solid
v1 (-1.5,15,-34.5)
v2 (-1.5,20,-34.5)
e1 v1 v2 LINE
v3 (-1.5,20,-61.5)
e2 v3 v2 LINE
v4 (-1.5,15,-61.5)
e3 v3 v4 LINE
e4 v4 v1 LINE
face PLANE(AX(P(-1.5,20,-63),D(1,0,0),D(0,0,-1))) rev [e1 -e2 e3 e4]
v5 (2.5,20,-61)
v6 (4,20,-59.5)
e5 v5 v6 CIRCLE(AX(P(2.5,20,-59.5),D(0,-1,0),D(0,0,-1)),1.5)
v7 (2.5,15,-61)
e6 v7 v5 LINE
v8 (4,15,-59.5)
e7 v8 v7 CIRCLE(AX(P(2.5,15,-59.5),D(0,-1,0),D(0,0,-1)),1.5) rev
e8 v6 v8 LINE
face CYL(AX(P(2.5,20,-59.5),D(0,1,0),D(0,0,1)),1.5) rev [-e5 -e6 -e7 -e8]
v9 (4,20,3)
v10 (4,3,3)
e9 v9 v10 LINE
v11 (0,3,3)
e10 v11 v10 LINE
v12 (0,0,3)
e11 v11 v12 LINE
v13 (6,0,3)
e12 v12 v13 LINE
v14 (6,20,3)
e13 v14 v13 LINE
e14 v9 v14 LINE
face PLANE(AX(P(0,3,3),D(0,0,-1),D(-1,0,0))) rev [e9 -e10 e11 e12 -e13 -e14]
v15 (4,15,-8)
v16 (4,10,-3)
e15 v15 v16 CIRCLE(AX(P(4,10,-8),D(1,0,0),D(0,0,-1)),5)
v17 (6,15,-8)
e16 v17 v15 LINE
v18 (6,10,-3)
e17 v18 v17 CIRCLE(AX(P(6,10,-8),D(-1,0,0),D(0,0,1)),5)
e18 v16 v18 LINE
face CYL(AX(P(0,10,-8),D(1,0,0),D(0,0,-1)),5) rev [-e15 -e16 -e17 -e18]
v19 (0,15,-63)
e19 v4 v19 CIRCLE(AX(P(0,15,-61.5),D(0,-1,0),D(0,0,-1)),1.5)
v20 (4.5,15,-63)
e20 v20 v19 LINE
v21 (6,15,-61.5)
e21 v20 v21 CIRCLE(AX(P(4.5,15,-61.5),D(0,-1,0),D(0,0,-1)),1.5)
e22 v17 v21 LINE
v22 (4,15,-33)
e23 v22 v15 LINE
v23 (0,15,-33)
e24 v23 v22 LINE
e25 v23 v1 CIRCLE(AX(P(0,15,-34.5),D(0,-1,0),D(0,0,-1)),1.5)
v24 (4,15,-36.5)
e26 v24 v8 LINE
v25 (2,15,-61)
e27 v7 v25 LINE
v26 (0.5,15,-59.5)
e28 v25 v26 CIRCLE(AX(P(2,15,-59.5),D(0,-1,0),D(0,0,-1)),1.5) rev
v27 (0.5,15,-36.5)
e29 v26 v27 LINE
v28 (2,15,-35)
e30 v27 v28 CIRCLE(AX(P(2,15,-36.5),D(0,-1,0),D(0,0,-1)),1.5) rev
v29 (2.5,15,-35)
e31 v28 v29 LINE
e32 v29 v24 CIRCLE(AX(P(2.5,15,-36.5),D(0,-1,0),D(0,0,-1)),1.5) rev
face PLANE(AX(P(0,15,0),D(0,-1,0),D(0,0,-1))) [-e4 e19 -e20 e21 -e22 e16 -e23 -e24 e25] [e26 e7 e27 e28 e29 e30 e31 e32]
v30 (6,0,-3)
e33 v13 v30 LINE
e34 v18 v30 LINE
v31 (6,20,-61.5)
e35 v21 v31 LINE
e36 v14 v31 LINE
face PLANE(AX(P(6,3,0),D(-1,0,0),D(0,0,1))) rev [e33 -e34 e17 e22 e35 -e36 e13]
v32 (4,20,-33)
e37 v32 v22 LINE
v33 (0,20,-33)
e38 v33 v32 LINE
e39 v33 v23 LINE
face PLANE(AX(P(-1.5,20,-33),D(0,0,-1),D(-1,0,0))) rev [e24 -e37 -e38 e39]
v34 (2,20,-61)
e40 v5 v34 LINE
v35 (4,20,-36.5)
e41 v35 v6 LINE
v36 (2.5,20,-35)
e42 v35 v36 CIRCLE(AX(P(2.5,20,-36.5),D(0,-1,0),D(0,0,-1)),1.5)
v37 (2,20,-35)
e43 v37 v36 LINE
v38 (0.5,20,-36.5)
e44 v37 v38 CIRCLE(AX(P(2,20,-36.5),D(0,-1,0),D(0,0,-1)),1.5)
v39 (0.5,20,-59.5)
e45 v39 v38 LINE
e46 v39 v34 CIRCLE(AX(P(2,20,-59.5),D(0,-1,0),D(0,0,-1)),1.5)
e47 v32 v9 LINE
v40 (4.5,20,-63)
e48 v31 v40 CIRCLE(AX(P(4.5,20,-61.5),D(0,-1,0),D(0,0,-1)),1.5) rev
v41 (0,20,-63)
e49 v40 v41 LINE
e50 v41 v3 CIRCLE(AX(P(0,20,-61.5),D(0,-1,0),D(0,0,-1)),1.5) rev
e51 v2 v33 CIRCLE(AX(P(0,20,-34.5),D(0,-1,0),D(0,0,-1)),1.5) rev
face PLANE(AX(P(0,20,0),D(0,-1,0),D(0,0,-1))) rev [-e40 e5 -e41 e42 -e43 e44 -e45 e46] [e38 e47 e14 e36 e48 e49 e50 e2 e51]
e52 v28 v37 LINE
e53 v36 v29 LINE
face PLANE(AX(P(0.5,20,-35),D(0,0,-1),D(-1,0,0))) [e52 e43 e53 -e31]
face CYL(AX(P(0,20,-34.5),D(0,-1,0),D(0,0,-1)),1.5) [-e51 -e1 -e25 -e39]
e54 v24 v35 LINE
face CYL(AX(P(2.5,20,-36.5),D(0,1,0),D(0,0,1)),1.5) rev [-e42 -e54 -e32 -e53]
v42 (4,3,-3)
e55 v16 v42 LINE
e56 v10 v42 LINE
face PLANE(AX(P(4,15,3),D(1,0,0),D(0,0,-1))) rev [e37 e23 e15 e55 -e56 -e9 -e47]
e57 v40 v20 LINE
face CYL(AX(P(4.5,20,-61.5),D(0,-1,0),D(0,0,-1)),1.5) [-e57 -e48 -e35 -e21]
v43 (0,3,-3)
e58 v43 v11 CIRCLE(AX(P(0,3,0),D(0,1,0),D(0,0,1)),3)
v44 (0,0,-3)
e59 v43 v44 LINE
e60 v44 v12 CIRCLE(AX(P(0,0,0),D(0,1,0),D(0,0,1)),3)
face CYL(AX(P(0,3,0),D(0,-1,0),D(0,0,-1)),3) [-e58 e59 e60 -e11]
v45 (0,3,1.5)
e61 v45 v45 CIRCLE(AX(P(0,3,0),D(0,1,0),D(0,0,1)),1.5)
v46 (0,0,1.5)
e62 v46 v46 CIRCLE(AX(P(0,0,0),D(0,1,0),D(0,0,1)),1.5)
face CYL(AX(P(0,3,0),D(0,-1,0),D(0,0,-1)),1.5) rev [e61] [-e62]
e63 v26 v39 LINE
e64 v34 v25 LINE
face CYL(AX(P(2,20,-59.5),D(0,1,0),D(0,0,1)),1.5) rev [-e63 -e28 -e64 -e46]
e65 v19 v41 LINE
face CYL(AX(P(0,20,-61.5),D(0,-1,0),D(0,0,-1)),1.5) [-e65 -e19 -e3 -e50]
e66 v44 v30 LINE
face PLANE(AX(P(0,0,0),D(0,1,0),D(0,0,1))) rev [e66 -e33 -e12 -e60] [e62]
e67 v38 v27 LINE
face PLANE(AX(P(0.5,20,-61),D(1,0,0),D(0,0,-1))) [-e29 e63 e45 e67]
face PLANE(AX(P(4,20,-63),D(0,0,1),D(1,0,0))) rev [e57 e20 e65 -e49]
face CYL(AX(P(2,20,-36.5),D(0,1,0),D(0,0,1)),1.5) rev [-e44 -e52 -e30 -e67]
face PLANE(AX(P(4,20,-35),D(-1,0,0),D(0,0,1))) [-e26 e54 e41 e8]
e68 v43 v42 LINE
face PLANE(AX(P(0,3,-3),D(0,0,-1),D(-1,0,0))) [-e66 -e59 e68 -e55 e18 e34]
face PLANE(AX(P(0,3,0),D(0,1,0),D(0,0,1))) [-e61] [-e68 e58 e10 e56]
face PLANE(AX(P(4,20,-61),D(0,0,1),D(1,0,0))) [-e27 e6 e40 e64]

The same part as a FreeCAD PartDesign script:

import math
import FreeCAD as App
import Part
import Sketcher


def edges_at(feature, points):
    """Names of the edges that pass closest to the given points."""
    edges = feature.Shape.Edges
    near = lambda p: min(range(len(edges)), key=lambda i: edges[i].distToShape(Part.Vertex(*p))[0])
    return sorted({f"Edge{near(p) + 1}" for p in points})


def add_polygon(sketch, points):
    """Adds a closed chain of lines whose ends are joined by coincident constraints."""
    first, n = sketch.GeometryCount, len(points)
    for a, b in zip(points, points[1:] + points[:1]):
        sketch.addGeometry(Part.LineSegment(App.Vector(*a, 0), App.Vector(*b, 0)), False)
    for i in range(n):
        sketch.addConstraint(Sketcher.Constraint("Coincident", first + i, 2, first + (i + 1) % n, 1))

doc = App.newDocument("Part")
body = doc.addObject("PartDesign::Body", "Body")

# Sketch on XZ plane
sketch1 = body.newObject("Sketcher::SketchObject", "Sketch")
sketch1.AttachmentSupport = (doc.getObject("XZ_Plane"), [""])
sketch1.MapMode = "FlatFace"
sketch1.addGeometry([
    Part.ArcOfCircle(Part.Circle(App.Vector(0, 0, 0), App.Vector(0, 0, 1), 3), math.radians(90), math.radians(270)),  # 0
    Part.LineSegment(App.Vector(0, 3, 0), App.Vector(6, 3, 0)),  # 1
    Part.LineSegment(App.Vector(6, 3, 0), App.Vector(6, -3, 0)),  # 2
    Part.LineSegment(App.Vector(6, -3, 0), App.Vector(0, -3, 0)),  # 3
    Part.Circle(App.Vector(0, 0, 0), App.Vector(0, 0, 1), 1.5),  # 4
], False)
sketch1.addConstraint([
    Sketcher.Constraint("Tangent", 0, 1, 1, 1),
    Sketcher.Constraint("Coincident", 1, 2, 2, 1),
    Sketcher.Constraint("Coincident", 2, 2, 3, 1),
    Sketcher.Constraint("Tangent", 3, 2, 0, 2),
    Sketcher.Constraint("Horizontal", 1),
    Sketcher.Constraint("Vertical", 2),
    Sketcher.Constraint("Horizontal", 3),
    Sketcher.Constraint("Coincident", 0, 3, -1, 1),
    Sketcher.Constraint("Coincident", 4, 3, -1, 1),
    Sketcher.Constraint("Equal", 3, 2),
    Sketcher.Constraint("Diameter", 4, 3.0),
    Sketcher.Constraint("Radius", 0, 3.0),
])
pad1 = body.newObject("PartDesign::Pad", "Pad")
pad1.Profile = sketch1
pad1.Length = 3
pad1.Reversed = True

# Sketch on XZ plane
sketch2 = body.newObject("Sketcher::SketchObject", "Sketch001")
sketch2.AttachmentSupport = (doc.getObject("XZ_Plane"), [""])
sketch2.MapMode = "FlatFace"
add_polygon(sketch2, [(4, -3), (4, 3), (6, 3), (6, -3)])  # lines 0-3
sketch2.addConstraint([
    Sketcher.Constraint("Vertical", 0),
    Sketcher.Constraint("Horizontal", 1),
    Sketcher.Constraint("Vertical", 2),
    Sketcher.Constraint("Horizontal", 3),
    Sketcher.Constraint("DistanceX", 1, 1, 1, 2, 2.0),
    Sketcher.Constraint("DistanceY", 0, 1, 0, 2, 6.0),
    Sketcher.Constraint("DistanceX", -1, 1, 0, 2, 4.0),
    Sketcher.Constraint("DistanceY", -1, 1, 0, 2, 3.0),
])
pad2 = body.newObject("PartDesign::Pad", "Pad001")
pad2.Profile = sketch2
pad2.Length = 15
pad2.Reversed = True

# Sketch on XZ plane
sketch3 = body.newObject("Sketcher::SketchObject", "Sketch002")
sketch3.AttachmentSupport = (doc.getObject("XZ_Plane"), [""])
sketch3.MapMode = "FlatFace"
sketch3.AttachmentOffset = App.Placement(App.Vector(0, 0, -15), App.Rotation())
add_polygon(sketch3, [(6, 3), (6, -63), (-1.5, -63), (-1.5, -33), (4, -33), (4, 3)])  # lines 0-5
add_polygon(sketch3, [(4, -35), (0.5, -35), (0.5, -61), (4, -61)])  # lines 6-9
sketch3.addConstraint([
    Sketcher.Constraint("Vertical", 0),
    Sketcher.Constraint("Horizontal", 1),
    Sketcher.Constraint("Vertical", 2),
    Sketcher.Constraint("Horizontal", 3),
    Sketcher.Constraint("Vertical", 4),
    Sketcher.Constraint("Horizontal", 5),
    Sketcher.Constraint("Horizontal", 6),
    Sketcher.Constraint("Vertical", 7),
    Sketcher.Constraint("Horizontal", 8),
    Sketcher.Constraint("Vertical", 9),
    Sketcher.Constraint("Vertical", 4, 2, 8, 2),
    Sketcher.Constraint("DistanceX", 5, 1, 5, 2, 2.0),
    Sketcher.Constraint("DistanceY", 0, 2, 0, 1, 66.0),
    Sketcher.Constraint("DistanceY", 2, 1, 2, 2, 30.0),
    Sketcher.Constraint("DistanceY", 7, 2, 7, 1, 26.0),
    Sketcher.Constraint("DistanceX", 1, 2, 1, 1, 7.5),
    Sketcher.Constraint("DistanceX", 6, 2, 6, 1, 3.5),
    Sketcher.Constraint("DistanceX", -1, 1, 0, 2, 6.0),
    Sketcher.Constraint("DistanceY", 0, 2, -1, 1, 63.0),
    Sketcher.Constraint("DistanceY", 6, 2, -1, 1, 35.0),
])
pad3 = body.newObject("PartDesign::Pad", "Pad002")
pad3.Profile = sketch3
pad3.Length = 5
pad3.Reversed = True
doc.recompute()

fillet = body.newObject("PartDesign::Fillet", "Fillet")
fillet.Base = (pad3, edges_at(pad3, [(5, 15, -3)]))
fillet.Radius = 5
doc.recompute()

fillet2 = body.newObject("PartDesign::Fillet", "Fillet001")
fillet2.Base = (fillet, edges_at(fillet, [
    (6, 17.5, -63),
    (-1.5, 17.5, -63),
    (-1.5, 17.5, -33),
    (0.5, 17.5, -35),
    (4, 17.5, -35),
]))
fillet2.Radius = 1.5
doc.recompute()

fillet3 = body.newObject("PartDesign::Fillet", "Fillet002")
fillet3.Base = (fillet2, edges_at(fillet2, [(4, 17.5, -61), (0.5, 17.5, -61)]))
fillet3.Radius = 1.5

doc.recompute()
